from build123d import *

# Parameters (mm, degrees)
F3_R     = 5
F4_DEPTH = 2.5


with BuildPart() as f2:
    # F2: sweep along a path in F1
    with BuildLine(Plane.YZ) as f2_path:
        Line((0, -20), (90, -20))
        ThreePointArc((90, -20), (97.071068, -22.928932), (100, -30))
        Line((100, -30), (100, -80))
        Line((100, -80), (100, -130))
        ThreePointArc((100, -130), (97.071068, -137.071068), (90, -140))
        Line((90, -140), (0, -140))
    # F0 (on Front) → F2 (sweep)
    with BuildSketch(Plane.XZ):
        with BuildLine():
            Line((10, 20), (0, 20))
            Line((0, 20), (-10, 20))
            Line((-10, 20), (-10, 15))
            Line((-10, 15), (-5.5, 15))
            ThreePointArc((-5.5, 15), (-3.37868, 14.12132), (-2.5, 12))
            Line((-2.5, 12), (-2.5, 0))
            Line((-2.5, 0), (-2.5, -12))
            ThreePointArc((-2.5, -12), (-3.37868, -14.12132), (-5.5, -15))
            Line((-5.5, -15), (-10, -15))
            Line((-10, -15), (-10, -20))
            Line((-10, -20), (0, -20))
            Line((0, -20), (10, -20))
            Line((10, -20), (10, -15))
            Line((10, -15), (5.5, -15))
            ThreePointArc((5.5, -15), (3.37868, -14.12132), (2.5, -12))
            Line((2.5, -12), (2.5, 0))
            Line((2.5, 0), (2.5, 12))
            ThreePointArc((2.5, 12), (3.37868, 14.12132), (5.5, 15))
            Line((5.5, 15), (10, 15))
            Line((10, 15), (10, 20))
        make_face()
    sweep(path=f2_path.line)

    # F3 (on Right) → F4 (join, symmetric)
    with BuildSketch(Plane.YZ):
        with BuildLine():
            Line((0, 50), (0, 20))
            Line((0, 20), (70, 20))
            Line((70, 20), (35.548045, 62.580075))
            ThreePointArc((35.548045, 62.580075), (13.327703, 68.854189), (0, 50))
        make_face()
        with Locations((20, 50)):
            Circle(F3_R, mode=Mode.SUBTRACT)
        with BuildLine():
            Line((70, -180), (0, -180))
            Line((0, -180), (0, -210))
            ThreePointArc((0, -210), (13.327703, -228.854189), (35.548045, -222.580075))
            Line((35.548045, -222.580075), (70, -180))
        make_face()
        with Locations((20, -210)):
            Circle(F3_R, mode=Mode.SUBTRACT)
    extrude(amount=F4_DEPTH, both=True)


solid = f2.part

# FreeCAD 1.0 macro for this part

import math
import FreeCAD as App
import Part
import Sketcher
Q = App.Units.Quantity

doc = App.newDocument("Part")
body = doc.addObject("PartDesign::Body", "Body")

# Sketch on XZ plane
sketch1 = doc.addObject("Sketcher::SketchObject", "Sketch")
body.addObject(sketch1)
sketch1.AttachmentSupport = (doc.XZ_Plane, [""])
sketch1.MapMode = "FlatFace"
sketch1.addGeometry([
    Part.LineSegment(App.Vector(10, 20, 0), App.Vector(-10, 20, 0)),  # 0
    Part.LineSegment(App.Vector(-10, 20, 0), App.Vector(-10, 15, 0)),  # 1
    Part.LineSegment(App.Vector(-10, 15, 0), App.Vector(-5.5, 15, 0)),  # 2
    Part.ArcOfCircle(Part.Circle(App.Vector(-5.5, 12, 0), App.Vector(0, 0, 1), 3), math.radians(0), math.radians(90)),  # 3
    Part.LineSegment(App.Vector(-2.5, 12, 0), App.Vector(-2.5, -12, 0)),  # 4
    Part.ArcOfCircle(Part.Circle(App.Vector(-5.5, -12, 0), App.Vector(0, 0, 1), 3), math.radians(-90), math.radians(0)),  # 5
    Part.LineSegment(App.Vector(-5.5, -15, 0), App.Vector(-10, -15, 0)),  # 6
    Part.LineSegment(App.Vector(-10, -15, 0), App.Vector(-10, -20, 0)),  # 7
    Part.LineSegment(App.Vector(-10, -20, 0), App.Vector(10, -20, 0)),  # 8
    Part.LineSegment(App.Vector(10, -20, 0), App.Vector(10, -15, 0)),  # 9
    Part.LineSegment(App.Vector(10, -15, 0), App.Vector(5.5, -15, 0)),  # 10
    Part.ArcOfCircle(Part.Circle(App.Vector(5.5, -12, 0), App.Vector(0, 0, 1), 3), math.radians(-180), math.radians(-90)),  # 11
    Part.LineSegment(App.Vector(2.5, -12, 0), App.Vector(2.5, 12, 0)),  # 12
    Part.ArcOfCircle(Part.Circle(App.Vector(5.5, 12, 0), App.Vector(0, 0, 1), 3), math.radians(90), math.radians(180)),  # 13
    Part.LineSegment(App.Vector(5.5, 15, 0), App.Vector(10, 15, 0)),  # 14
    Part.LineSegment(App.Vector(10, 15, 0), App.Vector(10, 20, 0)),  # 15
], False)
sketch1.addConstraint([
    Sketcher.Constraint("Coincident", 0, 2, 1, 1),
    Sketcher.Constraint("Coincident", 1, 2, 2, 1),
    Sketcher.Constraint("Tangent", 2, 2, 3, 2),
    Sketcher.Constraint("Tangent", 3, 1, 4, 1),
    Sketcher.Constraint("Tangent", 4, 2, 5, 2),
    Sketcher.Constraint("Tangent", 5, 1, 6, 1),
    Sketcher.Constraint("Coincident", 6, 2, 7, 1),
    Sketcher.Constraint("Coincident", 7, 2, 8, 1),
    Sketcher.Constraint("Coincident", 8, 2, 9, 1),
    Sketcher.Constraint("Coincident", 9, 2, 10, 1),
    Sketcher.Constraint("Tangent", 10, 2, 11, 2),
    Sketcher.Constraint("Tangent", 11, 1, 12, 1),
    Sketcher.Constraint("Tangent", 12, 2, 13, 2),
    Sketcher.Constraint("Tangent", 13, 1, 14, 1),
    Sketcher.Constraint("Coincident", 14, 2, 15, 1),
    Sketcher.Constraint("Coincident", 15, 2, 0, 1),
    Sketcher.Constraint("Horizontal", 0),
    Sketcher.Constraint("Vertical", 1),
    Sketcher.Constraint("Horizontal", 2),
    Sketcher.Constraint("Vertical", 4),
    Sketcher.Constraint("Horizontal", 6),
    Sketcher.Constraint("Vertical", 7),
    Sketcher.Constraint("Horizontal", 8),
    Sketcher.Constraint("Vertical", 9),
    Sketcher.Constraint("Horizontal", 10),
    Sketcher.Constraint("Vertical", 12),
    Sketcher.Constraint("Horizontal", 14),
    Sketcher.Constraint("Vertical", 15),
    Sketcher.Constraint("Equal", 3, 5),
    Sketcher.Constraint("Equal", 5, 11),
    Sketcher.Constraint("Equal", 11, 13),
    Sketcher.Constraint("Symmetric", 3, 3, 11, 3, -1, 1),
    Sketcher.Constraint("Symmetric", 0, 2, 8, 2, -1, 1),
    Sketcher.Constraint("Symmetric", 6, 2, 14, 2, -1, 1),
    Sketcher.Constraint("Symmetric", 6, 2, 9, 2, -2),
    Sketcher.Constraint("Radius", 3, Q("3.000001 mm")),
    Sketcher.Constraint("DistanceX", 0, 2, 0, 1, Q("20 mm")),
    Sketcher.Constraint("DistanceY", 1, 2, 1, 1, Q("5 mm")),
    Sketcher.Constraint("DistanceY", 4, 2, 4, 1, Q("24 mm")),
    Sketcher.Constraint("DistanceX", 2, 1, 2, 2, Q("4.5 mm")),
])

# Sketch on YZ plane
sketch2 = doc.addObject("Sketcher::SketchObject", "Sketch001")
body.addObject(sketch2)
sketch2.AttachmentSupport = (doc.YZ_Plane, [""])
sketch2.MapMode = "FlatFace"
sketch2.addGeometry([
    Part.LineSegment(App.Vector(0, -20, 0), App.Vector(90, -20, 0)),  # 0
    Part.ArcOfCircle(Part.Circle(App.Vector(90, -30, 0), App.Vector(0, 0, 1), 10), math.radians(0), math.radians(90)),  # 1
    Part.LineSegment(App.Vector(100, -30, 0), App.Vector(100, -130, 0)),  # 2
    Part.ArcOfCircle(Part.Circle(App.Vector(90, -130, 0), App.Vector(0, 0, 1), 10), math.radians(-90), math.radians(0)),  # 3
    Part.LineSegment(App.Vector(90, -140, 0), App.Vector(0, -140, 0)),  # 4
], False)
sketch2.addConstraint([
    Sketcher.Constraint("Tangent", 0, 2, 1, 2),
    Sketcher.Constraint("Tangent", 1, 1, 2, 1),
    Sketcher.Constraint("Tangent", 2, 2, 3, 2),
    Sketcher.Constraint("Tangent", 3, 1, 4, 1),
    Sketcher.Constraint("Horizontal", 0),
    Sketcher.Constraint("Vertical", 2),
    Sketcher.Constraint("Horizontal", 4),
    Sketcher.Constraint("Equal", 1, 3),
    Sketcher.Constraint("PointOnObject", 0, 1, -2),
    Sketcher.Constraint("PointOnObject", 4, 2, -2),
    Sketcher.Constraint("Radius", 1, Q("9.999999 mm")),
    Sketcher.Constraint("DistanceX", 0, 1, 0, 2, Q("90 mm")),
    Sketcher.Constraint("DistanceY", 2, 2, 2, 1, Q("100 mm")),
    Sketcher.Constraint("DistanceY", 1, 3, -1, 1, Q("29.999999 mm")),
])
doc.recompute()

additivepipe = doc.addObject("PartDesign::AdditivePipe", "AdditivePipe")
body.addObject(additivepipe)
additivepipe.Profile = sketch1
additivepipe.Spine = (sketch2, ["Edge1", "Edge2", "Edge3", "Edge4", "Edge5"])

# Sketch on YZ plane
sketch3 = doc.addObject("Sketcher::SketchObject", "Sketch002")
body.addObject(sketch3)
sketch3.AttachmentSupport = (doc.YZ_Plane, [""])
sketch3.MapMode = "FlatFace"
sketch3.addGeometry([
    Part.LineSegment(App.Vector(0, 50, 0), App.Vector(0, 20, 0)),  # 0
    Part.LineSegment(App.Vector(0, 20, 0), App.Vector(70, 20, 0)),  # 1
    Part.LineSegment(App.Vector(70, 20, 0), App.Vector(36, 63, 0)),  # 2
    Part.ArcOfCircle(Part.Circle(App.Vector(20, 50, 0), App.Vector(0, 0, 1), 20), math.radians(39), math.radians(180)),  # 3
    Part.Circle(App.Vector(20, 50, 0), App.Vector(0, 0, 1), 5),  # 4
    Part.LineSegment(App.Vector(70, -180, 0), App.Vector(0, -180, 0)),  # 5
    Part.LineSegment(App.Vector(0, -180, 0), App.Vector(0, -210, 0)),  # 6
    Part.ArcOfCircle(Part.Circle(App.Vector(20, -210, 0), App.Vector(0, 0, 1), 20), math.radians(-180), math.radians(-39)),  # 7
    Part.LineSegment(App.Vector(36, -223, 0), App.Vector(70, -180, 0)),  # 8
    Part.Circle(App.Vector(20, -210, 0), App.Vector(0, 0, 1), 5),  # 9
], False)
sketch3.addConstraint([
    Sketcher.Constraint("Coincident", 0, 2, 1, 1),
    Sketcher.Constraint("Coincident", 1, 2, 2, 1),
    Sketcher.Constraint("Tangent", 2, 2, 3, 1),
    Sketcher.Constraint("Tangent", 3, 2, 0, 1),
    Sketcher.Constraint("Coincident", 5, 2, 6, 1),
    Sketcher.Constraint("Tangent", 6, 2, 7, 1),
    Sketcher.Constraint("Tangent", 7, 2, 8, 1),
    Sketcher.Constraint("Coincident", 8, 2, 5, 1),
    Sketcher.Constraint("Vertical", 0),
    Sketcher.Constraint("Horizontal", 1),
    Sketcher.Constraint("Horizontal", 5),
    Sketcher.Constraint("Vertical", 6),
    Sketcher.Constraint("Coincident", 4, 3, 3, 3),
    Sketcher.Constraint("Coincident", 9, 3, 7, 3),
    Sketcher.Constraint("Equal", 3, 7),
    Sketcher.Constraint("Equal", 4, 9),
    Sketcher.Constraint("PointOnObject", 0, 2, -2),
    Sketcher.Constraint("PointOnObject", 5, 2, -2),
    Sketcher.Constraint("Vertical", 2, 2, 7, 2),
    Sketcher.Constraint("Vertical", 1, 2, 8, 2),
    Sketcher.Constraint("Diameter", 4, Q("10 mm")),
    Sketcher.Constraint("Radius", 3, Q("20 mm")),
    Sketcher.Constraint("DistanceX", 1, 1, 1, 2, Q("70 mm")),
    Sketcher.Constraint("DistanceY", 0, 2, 0, 1, Q("30 mm")),
    Sketcher.Constraint("DistanceY", -1, 1, 3, 3, Q("50 mm")),
    Sketcher.Constraint("DistanceY", 7, 3, -1, 1, Q("210 mm")),
])
pad1 = doc.addObject("PartDesign::Pad", "Pad")
body.addObject(pad1)
pad1.Profile = sketch3
pad1.Length = 5
pad1.Midplane = True

doc.recompute()
